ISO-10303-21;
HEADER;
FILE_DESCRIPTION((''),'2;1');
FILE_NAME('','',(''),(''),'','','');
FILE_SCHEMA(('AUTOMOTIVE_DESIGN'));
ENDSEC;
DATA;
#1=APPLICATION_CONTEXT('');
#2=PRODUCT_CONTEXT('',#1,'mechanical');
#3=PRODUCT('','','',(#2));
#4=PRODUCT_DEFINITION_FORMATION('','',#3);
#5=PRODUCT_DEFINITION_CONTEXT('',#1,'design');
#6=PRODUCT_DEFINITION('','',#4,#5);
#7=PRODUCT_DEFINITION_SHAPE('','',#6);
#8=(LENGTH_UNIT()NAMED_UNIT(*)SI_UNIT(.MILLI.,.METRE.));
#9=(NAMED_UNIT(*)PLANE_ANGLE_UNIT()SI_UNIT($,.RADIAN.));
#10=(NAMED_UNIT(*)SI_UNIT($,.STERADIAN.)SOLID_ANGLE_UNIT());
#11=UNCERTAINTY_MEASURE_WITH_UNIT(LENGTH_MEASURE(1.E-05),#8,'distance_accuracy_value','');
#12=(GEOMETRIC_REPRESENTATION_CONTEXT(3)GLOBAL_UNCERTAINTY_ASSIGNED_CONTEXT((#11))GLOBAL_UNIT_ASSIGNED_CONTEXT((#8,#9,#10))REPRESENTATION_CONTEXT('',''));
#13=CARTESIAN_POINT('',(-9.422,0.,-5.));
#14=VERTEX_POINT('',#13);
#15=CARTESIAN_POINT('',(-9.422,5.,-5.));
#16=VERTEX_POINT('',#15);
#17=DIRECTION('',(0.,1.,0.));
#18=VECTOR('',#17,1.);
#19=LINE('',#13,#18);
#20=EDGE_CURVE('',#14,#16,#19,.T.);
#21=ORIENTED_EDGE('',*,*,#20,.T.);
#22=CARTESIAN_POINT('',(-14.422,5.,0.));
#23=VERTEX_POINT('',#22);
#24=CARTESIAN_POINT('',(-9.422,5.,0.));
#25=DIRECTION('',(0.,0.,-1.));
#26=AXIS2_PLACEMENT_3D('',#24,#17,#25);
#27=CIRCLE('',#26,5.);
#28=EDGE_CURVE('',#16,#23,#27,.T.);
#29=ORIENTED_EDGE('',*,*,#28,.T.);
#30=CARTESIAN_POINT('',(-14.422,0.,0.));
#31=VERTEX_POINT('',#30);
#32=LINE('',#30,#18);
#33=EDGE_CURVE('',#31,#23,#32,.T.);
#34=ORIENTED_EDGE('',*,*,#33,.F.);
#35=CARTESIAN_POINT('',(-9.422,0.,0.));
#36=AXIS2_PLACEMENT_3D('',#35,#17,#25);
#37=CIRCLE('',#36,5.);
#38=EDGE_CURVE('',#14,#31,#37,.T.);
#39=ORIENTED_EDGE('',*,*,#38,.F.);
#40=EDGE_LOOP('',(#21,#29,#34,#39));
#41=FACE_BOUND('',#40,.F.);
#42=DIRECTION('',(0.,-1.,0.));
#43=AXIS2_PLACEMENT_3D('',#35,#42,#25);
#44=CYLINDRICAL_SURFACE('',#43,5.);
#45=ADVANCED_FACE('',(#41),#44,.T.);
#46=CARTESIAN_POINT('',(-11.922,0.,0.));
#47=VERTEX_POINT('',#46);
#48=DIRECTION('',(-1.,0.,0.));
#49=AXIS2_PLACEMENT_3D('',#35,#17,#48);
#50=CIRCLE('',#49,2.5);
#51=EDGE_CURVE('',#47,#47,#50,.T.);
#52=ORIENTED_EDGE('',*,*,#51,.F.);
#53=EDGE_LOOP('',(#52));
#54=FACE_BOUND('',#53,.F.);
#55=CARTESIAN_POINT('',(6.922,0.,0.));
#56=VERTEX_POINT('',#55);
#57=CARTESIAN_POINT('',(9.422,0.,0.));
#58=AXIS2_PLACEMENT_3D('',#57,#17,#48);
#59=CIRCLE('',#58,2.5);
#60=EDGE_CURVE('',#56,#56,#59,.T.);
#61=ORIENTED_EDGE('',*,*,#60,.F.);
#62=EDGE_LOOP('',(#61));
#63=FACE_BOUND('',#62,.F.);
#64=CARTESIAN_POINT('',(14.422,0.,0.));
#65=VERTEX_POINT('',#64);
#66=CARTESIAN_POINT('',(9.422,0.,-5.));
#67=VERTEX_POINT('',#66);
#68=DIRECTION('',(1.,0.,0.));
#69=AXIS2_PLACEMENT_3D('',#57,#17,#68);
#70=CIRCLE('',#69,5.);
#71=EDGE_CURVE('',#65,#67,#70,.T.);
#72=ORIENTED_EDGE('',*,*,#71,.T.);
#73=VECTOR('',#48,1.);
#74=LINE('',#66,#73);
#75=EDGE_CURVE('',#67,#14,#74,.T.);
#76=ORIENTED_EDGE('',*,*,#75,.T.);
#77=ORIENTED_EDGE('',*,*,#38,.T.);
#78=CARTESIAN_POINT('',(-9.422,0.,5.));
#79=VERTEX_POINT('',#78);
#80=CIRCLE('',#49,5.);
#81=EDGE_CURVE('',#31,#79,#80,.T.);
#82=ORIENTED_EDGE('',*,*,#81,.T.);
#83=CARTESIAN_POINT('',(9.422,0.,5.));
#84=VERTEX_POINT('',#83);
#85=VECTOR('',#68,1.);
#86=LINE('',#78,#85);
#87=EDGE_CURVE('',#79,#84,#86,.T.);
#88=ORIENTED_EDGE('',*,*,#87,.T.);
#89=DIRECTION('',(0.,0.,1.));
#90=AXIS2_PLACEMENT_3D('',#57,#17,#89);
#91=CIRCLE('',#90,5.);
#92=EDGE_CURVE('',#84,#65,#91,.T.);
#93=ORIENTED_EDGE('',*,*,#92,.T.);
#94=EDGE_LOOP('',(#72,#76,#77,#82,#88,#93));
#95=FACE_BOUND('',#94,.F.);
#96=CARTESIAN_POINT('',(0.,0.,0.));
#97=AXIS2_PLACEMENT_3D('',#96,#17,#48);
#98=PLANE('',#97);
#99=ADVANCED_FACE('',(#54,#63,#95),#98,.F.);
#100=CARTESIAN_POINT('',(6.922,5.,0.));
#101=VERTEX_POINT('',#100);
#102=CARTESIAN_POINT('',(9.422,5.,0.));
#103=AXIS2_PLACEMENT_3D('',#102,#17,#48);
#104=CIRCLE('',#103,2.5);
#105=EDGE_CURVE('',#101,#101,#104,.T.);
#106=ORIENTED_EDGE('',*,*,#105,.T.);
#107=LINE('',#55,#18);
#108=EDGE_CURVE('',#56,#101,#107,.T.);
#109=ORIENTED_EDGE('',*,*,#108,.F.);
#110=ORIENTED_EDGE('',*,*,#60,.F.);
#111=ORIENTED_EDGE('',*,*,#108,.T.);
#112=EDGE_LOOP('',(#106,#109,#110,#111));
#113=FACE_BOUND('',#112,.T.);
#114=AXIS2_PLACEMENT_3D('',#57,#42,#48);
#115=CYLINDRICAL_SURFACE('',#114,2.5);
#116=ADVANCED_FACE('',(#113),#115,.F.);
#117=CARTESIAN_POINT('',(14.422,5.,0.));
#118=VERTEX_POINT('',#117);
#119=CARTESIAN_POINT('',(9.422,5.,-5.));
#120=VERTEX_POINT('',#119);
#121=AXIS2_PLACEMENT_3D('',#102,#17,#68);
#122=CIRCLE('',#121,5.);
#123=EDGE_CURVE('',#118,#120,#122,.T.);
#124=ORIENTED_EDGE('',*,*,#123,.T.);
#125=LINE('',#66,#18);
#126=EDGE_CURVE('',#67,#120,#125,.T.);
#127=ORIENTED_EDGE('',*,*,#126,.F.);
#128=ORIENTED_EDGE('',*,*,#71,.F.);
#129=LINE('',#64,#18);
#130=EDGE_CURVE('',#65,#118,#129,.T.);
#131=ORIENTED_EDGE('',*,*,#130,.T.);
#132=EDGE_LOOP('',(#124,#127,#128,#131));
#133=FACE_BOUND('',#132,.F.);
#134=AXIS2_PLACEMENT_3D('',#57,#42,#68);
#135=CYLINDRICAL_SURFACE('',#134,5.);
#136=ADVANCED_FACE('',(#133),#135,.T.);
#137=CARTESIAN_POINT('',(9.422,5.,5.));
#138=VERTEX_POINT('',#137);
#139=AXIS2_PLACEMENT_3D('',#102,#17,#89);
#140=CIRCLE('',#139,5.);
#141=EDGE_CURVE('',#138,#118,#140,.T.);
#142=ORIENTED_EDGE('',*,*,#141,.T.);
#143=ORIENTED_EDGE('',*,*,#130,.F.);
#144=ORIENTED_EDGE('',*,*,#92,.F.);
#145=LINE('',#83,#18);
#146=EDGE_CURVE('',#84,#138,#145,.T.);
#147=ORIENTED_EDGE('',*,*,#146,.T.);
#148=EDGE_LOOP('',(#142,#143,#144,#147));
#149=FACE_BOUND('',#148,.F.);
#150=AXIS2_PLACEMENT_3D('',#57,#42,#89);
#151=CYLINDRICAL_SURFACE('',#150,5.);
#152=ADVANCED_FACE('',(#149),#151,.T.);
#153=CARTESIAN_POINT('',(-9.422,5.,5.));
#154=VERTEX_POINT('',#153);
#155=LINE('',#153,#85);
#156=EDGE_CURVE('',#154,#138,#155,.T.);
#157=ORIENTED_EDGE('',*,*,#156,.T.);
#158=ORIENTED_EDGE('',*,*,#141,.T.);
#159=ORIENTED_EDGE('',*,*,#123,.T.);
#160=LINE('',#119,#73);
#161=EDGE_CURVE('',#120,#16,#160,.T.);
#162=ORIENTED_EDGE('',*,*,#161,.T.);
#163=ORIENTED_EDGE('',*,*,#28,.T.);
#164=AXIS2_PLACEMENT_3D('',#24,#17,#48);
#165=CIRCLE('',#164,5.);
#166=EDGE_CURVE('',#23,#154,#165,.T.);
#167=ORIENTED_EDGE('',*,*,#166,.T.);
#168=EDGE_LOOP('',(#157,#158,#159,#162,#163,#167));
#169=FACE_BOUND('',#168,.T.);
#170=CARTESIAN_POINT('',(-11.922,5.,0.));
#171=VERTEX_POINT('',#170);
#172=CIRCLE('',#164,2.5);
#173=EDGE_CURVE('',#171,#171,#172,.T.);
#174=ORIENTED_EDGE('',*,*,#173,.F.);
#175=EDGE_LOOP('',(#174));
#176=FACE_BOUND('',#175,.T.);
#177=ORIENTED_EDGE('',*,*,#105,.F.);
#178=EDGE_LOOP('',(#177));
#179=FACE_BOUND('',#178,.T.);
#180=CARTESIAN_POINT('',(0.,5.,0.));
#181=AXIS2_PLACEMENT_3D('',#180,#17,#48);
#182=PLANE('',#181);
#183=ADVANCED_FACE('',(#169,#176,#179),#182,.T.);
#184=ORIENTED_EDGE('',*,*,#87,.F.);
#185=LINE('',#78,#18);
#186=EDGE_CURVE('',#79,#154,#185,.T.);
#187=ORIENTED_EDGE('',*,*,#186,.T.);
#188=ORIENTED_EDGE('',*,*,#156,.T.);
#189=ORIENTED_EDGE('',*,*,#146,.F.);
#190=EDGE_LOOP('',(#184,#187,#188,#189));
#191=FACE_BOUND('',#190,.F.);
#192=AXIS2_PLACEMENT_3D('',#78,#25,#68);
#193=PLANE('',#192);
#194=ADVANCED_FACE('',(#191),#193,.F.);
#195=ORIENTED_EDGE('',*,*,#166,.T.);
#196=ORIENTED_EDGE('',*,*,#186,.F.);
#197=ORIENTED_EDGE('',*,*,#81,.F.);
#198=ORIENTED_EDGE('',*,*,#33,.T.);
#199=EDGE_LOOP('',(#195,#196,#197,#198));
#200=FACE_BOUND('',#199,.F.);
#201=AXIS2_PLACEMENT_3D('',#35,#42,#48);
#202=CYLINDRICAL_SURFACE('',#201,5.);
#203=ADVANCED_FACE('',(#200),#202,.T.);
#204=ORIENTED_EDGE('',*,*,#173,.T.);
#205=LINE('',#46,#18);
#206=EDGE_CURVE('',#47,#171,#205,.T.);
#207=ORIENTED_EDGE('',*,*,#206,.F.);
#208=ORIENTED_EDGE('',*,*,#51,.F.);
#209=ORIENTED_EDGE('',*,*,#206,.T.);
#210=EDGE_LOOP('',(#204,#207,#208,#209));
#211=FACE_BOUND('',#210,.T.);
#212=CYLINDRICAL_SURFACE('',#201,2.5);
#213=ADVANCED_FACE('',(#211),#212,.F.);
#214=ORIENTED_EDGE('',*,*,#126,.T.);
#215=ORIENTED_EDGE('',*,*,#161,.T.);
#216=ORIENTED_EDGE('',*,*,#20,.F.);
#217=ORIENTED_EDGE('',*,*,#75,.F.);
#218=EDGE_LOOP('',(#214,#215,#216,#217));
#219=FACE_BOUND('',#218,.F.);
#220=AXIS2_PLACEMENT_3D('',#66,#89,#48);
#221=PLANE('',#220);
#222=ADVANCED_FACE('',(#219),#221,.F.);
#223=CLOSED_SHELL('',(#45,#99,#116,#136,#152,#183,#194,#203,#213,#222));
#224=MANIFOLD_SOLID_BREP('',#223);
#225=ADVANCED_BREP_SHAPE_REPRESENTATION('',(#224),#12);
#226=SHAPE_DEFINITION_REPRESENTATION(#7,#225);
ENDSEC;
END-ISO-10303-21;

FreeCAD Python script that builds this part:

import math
import FreeCAD as App
import Part
import Sketcher
from FreeCAD import Vector
Q = App.Units.Quantity

doc = App.newDocument("Part")
body = doc.addObject("PartDesign::Body", "Body")

# Sketch on XZ plane
sketch1 = body.newObject("Sketcher::SketchObject", "Sketch")
sketch1.AttachmentSupport = (doc.getObject("XZ_Plane"), [""])
sketch1.MapMode = "FlatFace"
sketch1.addGeometry(Part.ArcOfCircle(Part.Circle(Vector(9.422, 0, 0), Vector(0, 0, 1), 5), math.radians(-90), math.radians(90)), False)
sketch1.addGeometry(Part.LineSegment(Vector(9.422, -5, 0), Vector(-9.422, -5, 0)), False)
sketch1.addGeometry(Part.ArcOfCircle(Part.Circle(Vector(-9.422, 0, 0), Vector(0, 0, 1), 5), math.radians(90), math.radians(270)), False)
sketch1.addGeometry(Part.LineSegment(Vector(-9.422, 5, 0), Vector(9.422, 5, 0)), False)
sketch1.addGeometry(Part.Circle(Vector(9.422, 0, 0), Vector(0, 0, 1), 2.5), False)
sketch1.addGeometry(Part.Circle(Vector(-9.422, 0, 0), Vector(0, 0, 1), 2.5), False)
sketch1.addConstraint(Sketcher.Constraint("Tangent", 0, 1, 1, 1))
sketch1.addConstraint(Sketcher.Constraint("Tangent", 1, 2, 2, 2))
sketch1.addConstraint(Sketcher.Constraint("Tangent", 2, 1, 3, 1))
sketch1.addConstraint(Sketcher.Constraint("Tangent", 3, 2, 0, 2))
sketch1.addConstraint(Sketcher.Constraint("Horizontal", 1))
sketch1.addConstraint(Sketcher.Constraint("Horizontal", 3))
sketch1.addConstraint(Sketcher.Constraint("Coincident", 4, 3, 0, 3))
sketch1.addConstraint(Sketcher.Constraint("Coincident", 5, 3, 2, 3))
sketch1.addConstraint(Sketcher.Constraint("Equal", 4, 5))
sketch1.addConstraint(Sketcher.Constraint("Symmetric", 0, 3, 2, 3, -1, 1))
sketch1.addConstraint(Sketcher.Constraint("Diameter", 4, Q("5 mm")))
sketch1.addConstraint(Sketcher.Constraint("Radius", 0, Q("5 mm")))
sketch1.addConstraint(Sketcher.Constraint("DistanceX", 1, 2, 1, 1, Q("18.844 mm")))
pad1 = body.newObject("PartDesign::Pad", "Pad")
pad1.Profile = sketch1
pad1.Length = 5
pad1.Reversed = True

doc.recompute()
